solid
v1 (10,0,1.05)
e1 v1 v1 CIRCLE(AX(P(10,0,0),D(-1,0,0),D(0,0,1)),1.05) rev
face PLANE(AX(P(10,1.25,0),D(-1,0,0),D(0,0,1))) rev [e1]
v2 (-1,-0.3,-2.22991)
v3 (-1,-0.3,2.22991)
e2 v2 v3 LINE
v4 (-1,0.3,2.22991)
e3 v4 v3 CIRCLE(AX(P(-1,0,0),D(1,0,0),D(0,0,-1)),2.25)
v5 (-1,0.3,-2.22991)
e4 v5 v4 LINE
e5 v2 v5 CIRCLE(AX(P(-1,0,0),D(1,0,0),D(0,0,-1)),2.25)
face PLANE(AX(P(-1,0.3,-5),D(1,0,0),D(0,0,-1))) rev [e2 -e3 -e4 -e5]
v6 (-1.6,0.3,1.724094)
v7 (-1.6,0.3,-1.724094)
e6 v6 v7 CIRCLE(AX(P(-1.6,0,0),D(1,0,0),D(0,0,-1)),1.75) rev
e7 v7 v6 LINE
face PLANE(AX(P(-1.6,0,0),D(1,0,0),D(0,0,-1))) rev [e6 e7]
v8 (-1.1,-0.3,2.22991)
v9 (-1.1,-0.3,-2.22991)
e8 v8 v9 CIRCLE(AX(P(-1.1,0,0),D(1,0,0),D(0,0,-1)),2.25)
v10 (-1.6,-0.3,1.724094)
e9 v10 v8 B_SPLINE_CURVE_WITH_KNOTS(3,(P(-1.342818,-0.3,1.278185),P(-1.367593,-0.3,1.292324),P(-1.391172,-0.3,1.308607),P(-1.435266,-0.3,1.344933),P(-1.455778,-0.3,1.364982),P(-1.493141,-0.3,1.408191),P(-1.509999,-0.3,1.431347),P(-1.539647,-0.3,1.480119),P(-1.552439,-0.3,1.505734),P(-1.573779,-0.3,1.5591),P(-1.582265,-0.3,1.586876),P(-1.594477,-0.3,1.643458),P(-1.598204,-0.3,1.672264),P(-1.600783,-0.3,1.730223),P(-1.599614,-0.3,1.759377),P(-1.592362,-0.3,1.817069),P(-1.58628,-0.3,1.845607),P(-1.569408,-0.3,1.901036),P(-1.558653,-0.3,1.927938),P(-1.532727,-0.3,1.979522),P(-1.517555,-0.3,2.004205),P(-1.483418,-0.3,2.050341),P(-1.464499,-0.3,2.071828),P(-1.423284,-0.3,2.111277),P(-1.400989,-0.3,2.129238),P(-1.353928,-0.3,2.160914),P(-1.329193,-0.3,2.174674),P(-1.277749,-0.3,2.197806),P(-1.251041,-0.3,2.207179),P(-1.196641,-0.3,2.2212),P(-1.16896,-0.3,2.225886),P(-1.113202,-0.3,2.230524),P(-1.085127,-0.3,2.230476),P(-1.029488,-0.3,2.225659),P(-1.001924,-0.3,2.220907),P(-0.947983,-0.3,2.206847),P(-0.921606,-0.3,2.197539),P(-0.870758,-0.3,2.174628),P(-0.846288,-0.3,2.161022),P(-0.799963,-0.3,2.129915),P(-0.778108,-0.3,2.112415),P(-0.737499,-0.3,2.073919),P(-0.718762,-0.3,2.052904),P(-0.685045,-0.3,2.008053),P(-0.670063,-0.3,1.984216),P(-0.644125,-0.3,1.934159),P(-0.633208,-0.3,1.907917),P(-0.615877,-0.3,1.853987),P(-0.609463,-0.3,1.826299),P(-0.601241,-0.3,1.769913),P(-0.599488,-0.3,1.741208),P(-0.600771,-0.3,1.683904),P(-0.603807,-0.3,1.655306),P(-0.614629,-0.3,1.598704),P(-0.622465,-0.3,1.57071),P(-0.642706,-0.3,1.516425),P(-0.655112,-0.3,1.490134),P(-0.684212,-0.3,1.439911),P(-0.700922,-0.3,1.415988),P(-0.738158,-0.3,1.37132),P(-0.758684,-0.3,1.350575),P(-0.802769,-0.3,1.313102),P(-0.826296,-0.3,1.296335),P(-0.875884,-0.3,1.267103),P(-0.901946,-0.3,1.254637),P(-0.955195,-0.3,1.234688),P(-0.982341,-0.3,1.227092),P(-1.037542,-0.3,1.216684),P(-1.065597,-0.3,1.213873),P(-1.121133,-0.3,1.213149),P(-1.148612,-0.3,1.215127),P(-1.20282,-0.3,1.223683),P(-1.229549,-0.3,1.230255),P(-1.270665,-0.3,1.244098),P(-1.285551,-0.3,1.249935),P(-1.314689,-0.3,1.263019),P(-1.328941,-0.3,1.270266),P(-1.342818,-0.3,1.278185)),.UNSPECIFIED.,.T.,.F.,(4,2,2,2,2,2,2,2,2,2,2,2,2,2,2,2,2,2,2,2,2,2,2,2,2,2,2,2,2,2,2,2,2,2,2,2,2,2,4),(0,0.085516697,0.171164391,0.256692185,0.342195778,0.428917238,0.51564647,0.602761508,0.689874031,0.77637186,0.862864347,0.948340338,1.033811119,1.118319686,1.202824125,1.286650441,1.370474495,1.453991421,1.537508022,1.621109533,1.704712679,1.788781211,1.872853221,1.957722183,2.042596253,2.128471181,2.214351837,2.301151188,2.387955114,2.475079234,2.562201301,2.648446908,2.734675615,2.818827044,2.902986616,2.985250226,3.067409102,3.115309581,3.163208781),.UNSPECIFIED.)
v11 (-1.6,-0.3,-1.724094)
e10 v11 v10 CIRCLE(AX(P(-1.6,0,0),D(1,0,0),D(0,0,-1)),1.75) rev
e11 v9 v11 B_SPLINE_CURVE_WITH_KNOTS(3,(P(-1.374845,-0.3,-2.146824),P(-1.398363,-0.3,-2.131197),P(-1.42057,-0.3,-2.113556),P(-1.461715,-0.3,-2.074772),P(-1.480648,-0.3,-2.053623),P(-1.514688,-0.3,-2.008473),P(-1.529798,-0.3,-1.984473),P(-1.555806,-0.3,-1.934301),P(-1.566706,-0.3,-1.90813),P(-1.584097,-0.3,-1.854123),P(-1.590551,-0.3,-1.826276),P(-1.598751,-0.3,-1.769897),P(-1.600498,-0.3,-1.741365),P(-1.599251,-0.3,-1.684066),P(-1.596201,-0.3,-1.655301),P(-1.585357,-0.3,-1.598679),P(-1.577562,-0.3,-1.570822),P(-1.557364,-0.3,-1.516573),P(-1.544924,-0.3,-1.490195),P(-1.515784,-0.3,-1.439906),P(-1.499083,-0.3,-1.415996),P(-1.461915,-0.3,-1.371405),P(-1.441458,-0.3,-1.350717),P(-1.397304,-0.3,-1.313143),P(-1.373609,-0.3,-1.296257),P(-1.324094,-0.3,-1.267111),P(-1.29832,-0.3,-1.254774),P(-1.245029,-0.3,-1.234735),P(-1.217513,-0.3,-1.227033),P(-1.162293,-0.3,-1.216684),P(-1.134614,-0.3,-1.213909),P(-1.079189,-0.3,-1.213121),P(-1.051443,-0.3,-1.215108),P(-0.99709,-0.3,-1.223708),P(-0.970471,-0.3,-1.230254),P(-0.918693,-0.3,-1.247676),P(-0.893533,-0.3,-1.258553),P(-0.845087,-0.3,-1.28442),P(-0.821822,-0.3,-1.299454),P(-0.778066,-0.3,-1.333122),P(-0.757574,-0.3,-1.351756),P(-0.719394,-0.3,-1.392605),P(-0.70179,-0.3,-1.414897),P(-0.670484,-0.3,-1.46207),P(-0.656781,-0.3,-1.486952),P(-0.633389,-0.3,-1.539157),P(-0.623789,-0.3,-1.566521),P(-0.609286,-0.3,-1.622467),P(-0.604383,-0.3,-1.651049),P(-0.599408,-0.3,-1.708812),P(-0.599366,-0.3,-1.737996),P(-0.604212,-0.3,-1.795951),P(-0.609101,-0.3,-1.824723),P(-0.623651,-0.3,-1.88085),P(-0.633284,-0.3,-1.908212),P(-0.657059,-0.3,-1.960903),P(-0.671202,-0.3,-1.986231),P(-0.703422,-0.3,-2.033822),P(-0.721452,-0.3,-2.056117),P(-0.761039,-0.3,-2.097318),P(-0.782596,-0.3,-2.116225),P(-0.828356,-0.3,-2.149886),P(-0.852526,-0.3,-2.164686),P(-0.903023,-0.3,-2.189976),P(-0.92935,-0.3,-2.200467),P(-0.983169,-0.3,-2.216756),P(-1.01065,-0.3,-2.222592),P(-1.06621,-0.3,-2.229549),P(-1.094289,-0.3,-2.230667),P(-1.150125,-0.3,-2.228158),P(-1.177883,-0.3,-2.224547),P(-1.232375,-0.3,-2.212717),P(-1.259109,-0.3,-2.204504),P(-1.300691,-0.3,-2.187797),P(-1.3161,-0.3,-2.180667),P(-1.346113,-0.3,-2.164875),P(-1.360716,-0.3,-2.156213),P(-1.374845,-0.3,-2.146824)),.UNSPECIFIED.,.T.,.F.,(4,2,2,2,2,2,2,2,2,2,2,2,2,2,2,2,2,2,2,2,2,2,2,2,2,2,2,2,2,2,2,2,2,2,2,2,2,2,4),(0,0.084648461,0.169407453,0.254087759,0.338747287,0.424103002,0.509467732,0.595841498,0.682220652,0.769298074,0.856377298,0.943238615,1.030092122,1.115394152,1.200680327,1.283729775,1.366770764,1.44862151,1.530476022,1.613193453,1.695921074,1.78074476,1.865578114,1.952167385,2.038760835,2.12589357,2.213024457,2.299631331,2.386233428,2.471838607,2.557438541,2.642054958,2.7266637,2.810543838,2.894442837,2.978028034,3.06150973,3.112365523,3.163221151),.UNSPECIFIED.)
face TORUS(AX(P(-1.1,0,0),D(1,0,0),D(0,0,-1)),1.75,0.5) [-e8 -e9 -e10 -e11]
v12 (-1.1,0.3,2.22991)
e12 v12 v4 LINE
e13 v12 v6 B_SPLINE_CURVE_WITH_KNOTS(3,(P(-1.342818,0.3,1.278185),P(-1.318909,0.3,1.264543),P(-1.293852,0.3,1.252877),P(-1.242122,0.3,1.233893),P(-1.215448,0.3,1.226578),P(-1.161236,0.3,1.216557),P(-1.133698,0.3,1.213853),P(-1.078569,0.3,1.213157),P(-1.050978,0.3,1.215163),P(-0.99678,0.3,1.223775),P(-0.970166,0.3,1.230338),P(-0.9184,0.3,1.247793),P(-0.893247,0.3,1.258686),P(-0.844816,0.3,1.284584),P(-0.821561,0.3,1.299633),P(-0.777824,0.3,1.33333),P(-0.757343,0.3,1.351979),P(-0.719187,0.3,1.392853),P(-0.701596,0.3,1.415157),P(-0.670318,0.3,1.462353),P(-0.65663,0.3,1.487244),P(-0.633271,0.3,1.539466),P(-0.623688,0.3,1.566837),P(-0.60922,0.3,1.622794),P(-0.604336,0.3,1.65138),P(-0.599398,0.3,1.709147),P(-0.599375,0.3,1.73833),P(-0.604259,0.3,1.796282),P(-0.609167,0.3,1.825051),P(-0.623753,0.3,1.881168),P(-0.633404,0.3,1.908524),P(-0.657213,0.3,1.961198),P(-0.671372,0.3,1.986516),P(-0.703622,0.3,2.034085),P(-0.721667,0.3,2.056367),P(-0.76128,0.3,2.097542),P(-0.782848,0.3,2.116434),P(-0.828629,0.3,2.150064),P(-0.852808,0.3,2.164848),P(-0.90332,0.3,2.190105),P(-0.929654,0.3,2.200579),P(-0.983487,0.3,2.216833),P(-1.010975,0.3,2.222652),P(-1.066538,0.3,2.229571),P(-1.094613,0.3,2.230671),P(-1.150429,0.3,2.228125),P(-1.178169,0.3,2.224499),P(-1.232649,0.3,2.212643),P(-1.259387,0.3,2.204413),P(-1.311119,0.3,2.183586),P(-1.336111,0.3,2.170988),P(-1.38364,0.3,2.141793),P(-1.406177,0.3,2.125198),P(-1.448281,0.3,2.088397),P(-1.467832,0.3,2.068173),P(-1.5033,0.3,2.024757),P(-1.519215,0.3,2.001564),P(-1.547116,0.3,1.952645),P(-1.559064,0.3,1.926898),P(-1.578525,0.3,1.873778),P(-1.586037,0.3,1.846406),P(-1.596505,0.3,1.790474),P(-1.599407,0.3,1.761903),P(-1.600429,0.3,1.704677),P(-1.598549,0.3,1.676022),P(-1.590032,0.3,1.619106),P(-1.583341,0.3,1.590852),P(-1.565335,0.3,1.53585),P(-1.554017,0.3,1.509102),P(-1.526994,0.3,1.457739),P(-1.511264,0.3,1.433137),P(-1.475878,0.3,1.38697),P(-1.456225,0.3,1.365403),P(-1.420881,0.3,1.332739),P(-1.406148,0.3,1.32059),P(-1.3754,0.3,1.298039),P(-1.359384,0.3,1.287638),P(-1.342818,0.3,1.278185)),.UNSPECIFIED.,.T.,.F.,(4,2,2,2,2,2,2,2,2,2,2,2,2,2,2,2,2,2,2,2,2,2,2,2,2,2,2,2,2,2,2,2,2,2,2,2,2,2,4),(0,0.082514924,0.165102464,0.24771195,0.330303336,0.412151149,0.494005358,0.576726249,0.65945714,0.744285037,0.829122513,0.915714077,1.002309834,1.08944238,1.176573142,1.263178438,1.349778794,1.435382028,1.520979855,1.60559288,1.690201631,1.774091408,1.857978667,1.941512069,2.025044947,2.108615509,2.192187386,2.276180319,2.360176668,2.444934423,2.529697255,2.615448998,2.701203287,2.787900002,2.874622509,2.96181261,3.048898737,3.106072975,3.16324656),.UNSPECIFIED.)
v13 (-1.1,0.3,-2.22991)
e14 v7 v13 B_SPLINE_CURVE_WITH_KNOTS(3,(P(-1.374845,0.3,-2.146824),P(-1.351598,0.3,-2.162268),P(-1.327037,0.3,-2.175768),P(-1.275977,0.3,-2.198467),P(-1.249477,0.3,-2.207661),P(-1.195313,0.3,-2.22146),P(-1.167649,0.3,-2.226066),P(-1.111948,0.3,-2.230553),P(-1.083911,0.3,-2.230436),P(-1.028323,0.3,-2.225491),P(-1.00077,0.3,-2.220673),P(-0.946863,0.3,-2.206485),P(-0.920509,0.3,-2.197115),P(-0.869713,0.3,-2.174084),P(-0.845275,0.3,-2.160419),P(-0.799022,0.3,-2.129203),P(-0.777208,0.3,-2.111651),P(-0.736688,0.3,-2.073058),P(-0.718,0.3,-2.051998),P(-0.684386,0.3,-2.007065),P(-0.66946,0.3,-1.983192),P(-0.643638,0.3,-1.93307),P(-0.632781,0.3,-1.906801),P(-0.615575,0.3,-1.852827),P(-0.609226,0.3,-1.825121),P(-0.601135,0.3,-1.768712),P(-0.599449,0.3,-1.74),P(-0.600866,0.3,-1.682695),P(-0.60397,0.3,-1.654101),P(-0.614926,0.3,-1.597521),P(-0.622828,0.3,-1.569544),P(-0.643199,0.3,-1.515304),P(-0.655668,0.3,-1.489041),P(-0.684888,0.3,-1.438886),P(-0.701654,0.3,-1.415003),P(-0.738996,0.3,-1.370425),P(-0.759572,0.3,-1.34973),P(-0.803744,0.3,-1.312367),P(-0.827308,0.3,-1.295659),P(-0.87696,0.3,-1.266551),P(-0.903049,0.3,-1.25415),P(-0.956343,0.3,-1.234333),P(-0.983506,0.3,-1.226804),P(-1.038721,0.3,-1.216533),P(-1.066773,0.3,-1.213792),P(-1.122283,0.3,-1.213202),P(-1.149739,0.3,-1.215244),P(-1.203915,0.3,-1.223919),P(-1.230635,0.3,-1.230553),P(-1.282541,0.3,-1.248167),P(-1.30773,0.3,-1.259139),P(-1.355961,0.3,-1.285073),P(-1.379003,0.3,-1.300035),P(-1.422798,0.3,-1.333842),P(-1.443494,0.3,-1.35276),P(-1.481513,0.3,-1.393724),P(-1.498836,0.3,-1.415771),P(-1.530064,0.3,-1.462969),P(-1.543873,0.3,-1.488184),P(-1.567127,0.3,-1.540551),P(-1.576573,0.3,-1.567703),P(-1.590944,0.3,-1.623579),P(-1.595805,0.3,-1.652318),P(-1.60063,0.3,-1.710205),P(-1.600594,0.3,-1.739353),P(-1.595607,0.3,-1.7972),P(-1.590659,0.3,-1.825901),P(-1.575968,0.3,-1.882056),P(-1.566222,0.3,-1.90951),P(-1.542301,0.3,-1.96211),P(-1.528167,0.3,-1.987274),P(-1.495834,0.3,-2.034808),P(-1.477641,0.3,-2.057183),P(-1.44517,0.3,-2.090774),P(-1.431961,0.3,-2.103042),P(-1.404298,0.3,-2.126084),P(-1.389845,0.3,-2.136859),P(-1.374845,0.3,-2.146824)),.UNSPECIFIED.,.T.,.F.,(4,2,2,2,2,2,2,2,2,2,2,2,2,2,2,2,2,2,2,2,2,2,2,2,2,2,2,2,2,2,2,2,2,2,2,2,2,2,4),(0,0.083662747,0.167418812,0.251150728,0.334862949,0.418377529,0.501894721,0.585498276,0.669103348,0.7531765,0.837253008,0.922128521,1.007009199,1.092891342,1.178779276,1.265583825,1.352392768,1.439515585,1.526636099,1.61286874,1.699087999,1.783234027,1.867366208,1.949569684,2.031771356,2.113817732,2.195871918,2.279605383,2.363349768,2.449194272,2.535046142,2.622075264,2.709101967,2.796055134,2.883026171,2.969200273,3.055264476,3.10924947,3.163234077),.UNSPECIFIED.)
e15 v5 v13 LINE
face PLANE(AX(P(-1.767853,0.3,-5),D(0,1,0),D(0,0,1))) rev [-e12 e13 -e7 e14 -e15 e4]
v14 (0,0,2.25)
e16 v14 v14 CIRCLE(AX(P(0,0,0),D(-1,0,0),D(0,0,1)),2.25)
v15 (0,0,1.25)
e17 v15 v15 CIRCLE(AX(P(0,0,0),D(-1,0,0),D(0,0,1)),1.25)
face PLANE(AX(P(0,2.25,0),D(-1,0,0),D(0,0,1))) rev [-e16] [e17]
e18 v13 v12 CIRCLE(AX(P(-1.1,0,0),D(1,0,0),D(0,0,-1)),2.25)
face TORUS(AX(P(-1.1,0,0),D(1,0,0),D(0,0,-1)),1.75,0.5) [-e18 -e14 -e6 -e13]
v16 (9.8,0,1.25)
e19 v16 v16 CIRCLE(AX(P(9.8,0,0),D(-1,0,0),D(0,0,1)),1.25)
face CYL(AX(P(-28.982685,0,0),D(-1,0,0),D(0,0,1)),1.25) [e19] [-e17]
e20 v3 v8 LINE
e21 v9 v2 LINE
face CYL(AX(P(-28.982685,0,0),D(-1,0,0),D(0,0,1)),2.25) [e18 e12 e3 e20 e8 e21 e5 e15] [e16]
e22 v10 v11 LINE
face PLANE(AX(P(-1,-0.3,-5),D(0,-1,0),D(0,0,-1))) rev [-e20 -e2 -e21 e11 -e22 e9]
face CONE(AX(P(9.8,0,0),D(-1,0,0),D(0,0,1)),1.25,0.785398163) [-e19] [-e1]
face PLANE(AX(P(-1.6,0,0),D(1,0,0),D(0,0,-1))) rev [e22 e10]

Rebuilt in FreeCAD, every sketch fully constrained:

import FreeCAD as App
import Part
import Sketcher


def edges_at(feature, points):
    """Names of the edges that pass closest to the given points."""
    edges = feature.Shape.Edges
    near = lambda p: min(range(len(edges)), key=lambda i: edges[i].distToShape(Part.Vertex(*p))[0])
    return sorted({f"Edge{near(p) + 1}" for p in points})


def add_polygon(sketch, points):
    """Adds a closed chain of lines whose ends are joined by coincident constraints."""
    first, n = sketch.GeometryCount, len(points)
    for a, b in zip(points, points[1:] + points[:1]):
        sketch.addGeometry(Part.LineSegment(App.Vector(*a, 0), App.Vector(*b, 0)), False)
    for i in range(n):
        sketch.addConstraint(Sketcher.Constraint("Coincident", first + i, 2, first + (i + 1) % n, 1))

doc = App.newDocument("Part")
body = doc.addObject("PartDesign::Body", "Body")

# Sketch on XY plane
sketch1 = doc.addObject("Sketcher::SketchObject", "Sketch")
body.addObject(sketch1)
sketch1.AttachmentSupport = (doc.XY_Plane, [""])
sketch1.MapMode = "FlatFace"
add_polygon(sketch1, [(-1.6, 2.2), (-1.6, 0), (10, 0), (10, 1.2), (0, 1.2), (0, 2.2)])  # lines 0-5
sketch1.addConstraint(Sketcher.Constraint("Vertical", 0))
sketch1.addConstraint(Sketcher.Constraint("Horizontal", 1))
sketch1.addConstraint(Sketcher.Constraint("Vertical", 2))
sketch1.addConstraint(Sketcher.Constraint("Horizontal", 3))
sketch1.addConstraint(Sketcher.Constraint("Vertical", 4))
sketch1.addConstraint(Sketcher.Constraint("Horizontal", 5))
sketch1.addConstraint(Sketcher.Constraint("PointOnObject", 0, 2, -1))
sketch1.addConstraint(Sketcher.Constraint("PointOnObject", 3, 2, -2))
sketch1.addConstraint(Sketcher.Constraint("DistanceX", 3, 2, 3, 1, 10.0))
sketch1.addConstraint(Sketcher.Constraint("DistanceY", 4, 1, 4, 2, 1.0))
sketch1.addConstraint(Sketcher.Constraint("DistanceX", 1, 1, 1, 2, 11.6))
sketch1.addConstraint(Sketcher.Constraint("DistanceY", 0, 2, 0, 1, 2.25))
revolution = doc.addObject("PartDesign::Revolution", "Revolution")
body.addObject(revolution)
revolution.Profile = sketch1
revolution.ReferenceAxis = (sketch1, ["H_Axis"])
revolution.Angle = 360
doc.recompute()

chamfer = doc.addObject("PartDesign::Chamfer", "Chamfer")
body.addObject(chamfer)
chamfer.Base = (revolution, edges_at(revolution, [(10, 0, -1.25)]))
chamfer.Size = 0.2
doc.recompute()

fillet = doc.addObject("PartDesign::Fillet", "Fillet")
body.addObject(fillet)
fillet.Base = (chamfer, edges_at(chamfer, [(-1.6, 0, -2.25)]))
fillet.Radius = 0.5

# Sketch on XY plane
sketch2 = doc.addObject("Sketcher::SketchObject", "Sketch001")
body.addObject(sketch2)
sketch2.AttachmentSupport = (doc.XY_Plane, [""])
sketch2.MapMode = "FlatFace"
add_polygon(sketch2, [(-1.8, 0.3), (-1.8, -0.3), (-1, -0.3), (-1, 0.3)])  # lines 0-3
sketch2.addConstraint(Sketcher.Constraint("Vertical", 0))
sketch2.addConstraint(Sketcher.Constraint("Horizontal", 1))
sketch2.addConstraint(Sketcher.Constraint("Vertical", 2))
sketch2.addConstraint(Sketcher.Constraint("Horizontal", 3))
sketch2.addConstraint(Sketcher.Constraint("DistanceY", 0, 2, 0, 1, 0.6))
sketch2.addConstraint(Sketcher.Constraint("DistanceX", 1, 2, -1, 1, 1.0))
sketch2.addConstraint(Sketcher.Constraint("DistanceY", 0, 2, -1, 1, 0.3))
sketch2.addConstraint(Sketcher.Constraint("DistanceX", 1, 1, 1, 2, 0.767853))
pocket1 = doc.addObject("PartDesign::Pocket", "Pocket")
body.addObject(pocket1)
pocket1.Profile = sketch2
pocket1.Length = 10
pocket1.Midplane = True

doc.recompute()
